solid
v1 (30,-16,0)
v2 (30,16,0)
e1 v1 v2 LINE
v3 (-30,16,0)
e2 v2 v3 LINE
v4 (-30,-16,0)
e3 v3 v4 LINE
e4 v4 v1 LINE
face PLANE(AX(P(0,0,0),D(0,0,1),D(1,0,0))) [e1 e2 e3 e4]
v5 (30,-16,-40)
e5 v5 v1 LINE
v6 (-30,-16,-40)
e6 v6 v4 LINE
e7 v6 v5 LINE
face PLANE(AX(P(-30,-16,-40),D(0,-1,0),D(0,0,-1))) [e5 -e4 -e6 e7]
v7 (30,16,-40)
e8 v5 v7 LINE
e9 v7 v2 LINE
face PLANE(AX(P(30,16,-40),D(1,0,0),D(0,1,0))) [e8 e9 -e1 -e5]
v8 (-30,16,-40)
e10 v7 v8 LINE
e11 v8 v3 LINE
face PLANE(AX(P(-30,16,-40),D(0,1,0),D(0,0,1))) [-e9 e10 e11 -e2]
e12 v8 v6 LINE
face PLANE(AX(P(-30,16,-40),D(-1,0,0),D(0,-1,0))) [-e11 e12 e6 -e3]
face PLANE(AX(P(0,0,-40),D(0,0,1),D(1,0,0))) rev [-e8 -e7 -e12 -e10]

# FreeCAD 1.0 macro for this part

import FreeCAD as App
import Part
import Sketcher

V = App.Vector
Q = App.Units.Quantity

doc = App.newDocument("Part")
params = doc.addObject("Spreadsheet::Sheet", "Params")
for row, (alias, value) in enumerate([
    ("sketch1_width", "60 mm"),
    ("sketch1_height", "32 mm"),
    ("pad1_length", "40 mm"),
], start=1):
    params.set(f"A{row}", alias)
    params.set(f"B{row}", "=" + value)
    params.setAlias(f"B{row}", alias)

body = doc.addObject("PartDesign::Body", "Body")

# Sketch on XY plane
sketch1 = body.newObject("Sketcher::SketchObject", "Sketch")
sketch1.AttachmentSupport = (doc.getObject("XY_Plane"), [""])
sketch1.MapMode = "FlatFace"
sketch1.addGeometry([
    Part.LineSegment(V(-30, 16, 0), V(-30, -16, 0)),
    Part.LineSegment(V(-30, -16, 0), V(30, -16, 0)),
    Part.LineSegment(V(30, -16, 0), V(30, 16, 0)),
    Part.LineSegment(V(30, 16, 0), V(-30, 16, 0)),
], False)
sketch1.addConstraint([
    Sketcher.Constraint("Coincident", 0, 2, 1, 1),
    Sketcher.Constraint("Coincident", 1, 2, 2, 1),
    Sketcher.Constraint("Coincident", 2, 2, 3, 1),
    Sketcher.Constraint("Coincident", 3, 2, 0, 1),
    Sketcher.Constraint("Vertical", 0),
    Sketcher.Constraint("Horizontal", 1),
    Sketcher.Constraint("Vertical", 2),
    Sketcher.Constraint("Horizontal", 3),
    Sketcher.Constraint("Symmetric", 0, 2, 2, 2, -1, 1),
    Sketcher.Constraint("DistanceX", 1, 1, 1, 2, Q("60 mm")),
    Sketcher.Constraint("DistanceY", 0, 2, 0, 1, Q("32 mm")),
])
sketch1.setExpression("Constraints[9]", "Params.sketch1_width")
sketch1.setExpression("Constraints[10]", "Params.sketch1_height")
pad1 = body.newObject("PartDesign::Pad", "Pad")
pad1.Profile = sketch1
pad1.setExpression("Length", "Params.pad1_length")
pad1.Reversed = True

doc.recompute()
